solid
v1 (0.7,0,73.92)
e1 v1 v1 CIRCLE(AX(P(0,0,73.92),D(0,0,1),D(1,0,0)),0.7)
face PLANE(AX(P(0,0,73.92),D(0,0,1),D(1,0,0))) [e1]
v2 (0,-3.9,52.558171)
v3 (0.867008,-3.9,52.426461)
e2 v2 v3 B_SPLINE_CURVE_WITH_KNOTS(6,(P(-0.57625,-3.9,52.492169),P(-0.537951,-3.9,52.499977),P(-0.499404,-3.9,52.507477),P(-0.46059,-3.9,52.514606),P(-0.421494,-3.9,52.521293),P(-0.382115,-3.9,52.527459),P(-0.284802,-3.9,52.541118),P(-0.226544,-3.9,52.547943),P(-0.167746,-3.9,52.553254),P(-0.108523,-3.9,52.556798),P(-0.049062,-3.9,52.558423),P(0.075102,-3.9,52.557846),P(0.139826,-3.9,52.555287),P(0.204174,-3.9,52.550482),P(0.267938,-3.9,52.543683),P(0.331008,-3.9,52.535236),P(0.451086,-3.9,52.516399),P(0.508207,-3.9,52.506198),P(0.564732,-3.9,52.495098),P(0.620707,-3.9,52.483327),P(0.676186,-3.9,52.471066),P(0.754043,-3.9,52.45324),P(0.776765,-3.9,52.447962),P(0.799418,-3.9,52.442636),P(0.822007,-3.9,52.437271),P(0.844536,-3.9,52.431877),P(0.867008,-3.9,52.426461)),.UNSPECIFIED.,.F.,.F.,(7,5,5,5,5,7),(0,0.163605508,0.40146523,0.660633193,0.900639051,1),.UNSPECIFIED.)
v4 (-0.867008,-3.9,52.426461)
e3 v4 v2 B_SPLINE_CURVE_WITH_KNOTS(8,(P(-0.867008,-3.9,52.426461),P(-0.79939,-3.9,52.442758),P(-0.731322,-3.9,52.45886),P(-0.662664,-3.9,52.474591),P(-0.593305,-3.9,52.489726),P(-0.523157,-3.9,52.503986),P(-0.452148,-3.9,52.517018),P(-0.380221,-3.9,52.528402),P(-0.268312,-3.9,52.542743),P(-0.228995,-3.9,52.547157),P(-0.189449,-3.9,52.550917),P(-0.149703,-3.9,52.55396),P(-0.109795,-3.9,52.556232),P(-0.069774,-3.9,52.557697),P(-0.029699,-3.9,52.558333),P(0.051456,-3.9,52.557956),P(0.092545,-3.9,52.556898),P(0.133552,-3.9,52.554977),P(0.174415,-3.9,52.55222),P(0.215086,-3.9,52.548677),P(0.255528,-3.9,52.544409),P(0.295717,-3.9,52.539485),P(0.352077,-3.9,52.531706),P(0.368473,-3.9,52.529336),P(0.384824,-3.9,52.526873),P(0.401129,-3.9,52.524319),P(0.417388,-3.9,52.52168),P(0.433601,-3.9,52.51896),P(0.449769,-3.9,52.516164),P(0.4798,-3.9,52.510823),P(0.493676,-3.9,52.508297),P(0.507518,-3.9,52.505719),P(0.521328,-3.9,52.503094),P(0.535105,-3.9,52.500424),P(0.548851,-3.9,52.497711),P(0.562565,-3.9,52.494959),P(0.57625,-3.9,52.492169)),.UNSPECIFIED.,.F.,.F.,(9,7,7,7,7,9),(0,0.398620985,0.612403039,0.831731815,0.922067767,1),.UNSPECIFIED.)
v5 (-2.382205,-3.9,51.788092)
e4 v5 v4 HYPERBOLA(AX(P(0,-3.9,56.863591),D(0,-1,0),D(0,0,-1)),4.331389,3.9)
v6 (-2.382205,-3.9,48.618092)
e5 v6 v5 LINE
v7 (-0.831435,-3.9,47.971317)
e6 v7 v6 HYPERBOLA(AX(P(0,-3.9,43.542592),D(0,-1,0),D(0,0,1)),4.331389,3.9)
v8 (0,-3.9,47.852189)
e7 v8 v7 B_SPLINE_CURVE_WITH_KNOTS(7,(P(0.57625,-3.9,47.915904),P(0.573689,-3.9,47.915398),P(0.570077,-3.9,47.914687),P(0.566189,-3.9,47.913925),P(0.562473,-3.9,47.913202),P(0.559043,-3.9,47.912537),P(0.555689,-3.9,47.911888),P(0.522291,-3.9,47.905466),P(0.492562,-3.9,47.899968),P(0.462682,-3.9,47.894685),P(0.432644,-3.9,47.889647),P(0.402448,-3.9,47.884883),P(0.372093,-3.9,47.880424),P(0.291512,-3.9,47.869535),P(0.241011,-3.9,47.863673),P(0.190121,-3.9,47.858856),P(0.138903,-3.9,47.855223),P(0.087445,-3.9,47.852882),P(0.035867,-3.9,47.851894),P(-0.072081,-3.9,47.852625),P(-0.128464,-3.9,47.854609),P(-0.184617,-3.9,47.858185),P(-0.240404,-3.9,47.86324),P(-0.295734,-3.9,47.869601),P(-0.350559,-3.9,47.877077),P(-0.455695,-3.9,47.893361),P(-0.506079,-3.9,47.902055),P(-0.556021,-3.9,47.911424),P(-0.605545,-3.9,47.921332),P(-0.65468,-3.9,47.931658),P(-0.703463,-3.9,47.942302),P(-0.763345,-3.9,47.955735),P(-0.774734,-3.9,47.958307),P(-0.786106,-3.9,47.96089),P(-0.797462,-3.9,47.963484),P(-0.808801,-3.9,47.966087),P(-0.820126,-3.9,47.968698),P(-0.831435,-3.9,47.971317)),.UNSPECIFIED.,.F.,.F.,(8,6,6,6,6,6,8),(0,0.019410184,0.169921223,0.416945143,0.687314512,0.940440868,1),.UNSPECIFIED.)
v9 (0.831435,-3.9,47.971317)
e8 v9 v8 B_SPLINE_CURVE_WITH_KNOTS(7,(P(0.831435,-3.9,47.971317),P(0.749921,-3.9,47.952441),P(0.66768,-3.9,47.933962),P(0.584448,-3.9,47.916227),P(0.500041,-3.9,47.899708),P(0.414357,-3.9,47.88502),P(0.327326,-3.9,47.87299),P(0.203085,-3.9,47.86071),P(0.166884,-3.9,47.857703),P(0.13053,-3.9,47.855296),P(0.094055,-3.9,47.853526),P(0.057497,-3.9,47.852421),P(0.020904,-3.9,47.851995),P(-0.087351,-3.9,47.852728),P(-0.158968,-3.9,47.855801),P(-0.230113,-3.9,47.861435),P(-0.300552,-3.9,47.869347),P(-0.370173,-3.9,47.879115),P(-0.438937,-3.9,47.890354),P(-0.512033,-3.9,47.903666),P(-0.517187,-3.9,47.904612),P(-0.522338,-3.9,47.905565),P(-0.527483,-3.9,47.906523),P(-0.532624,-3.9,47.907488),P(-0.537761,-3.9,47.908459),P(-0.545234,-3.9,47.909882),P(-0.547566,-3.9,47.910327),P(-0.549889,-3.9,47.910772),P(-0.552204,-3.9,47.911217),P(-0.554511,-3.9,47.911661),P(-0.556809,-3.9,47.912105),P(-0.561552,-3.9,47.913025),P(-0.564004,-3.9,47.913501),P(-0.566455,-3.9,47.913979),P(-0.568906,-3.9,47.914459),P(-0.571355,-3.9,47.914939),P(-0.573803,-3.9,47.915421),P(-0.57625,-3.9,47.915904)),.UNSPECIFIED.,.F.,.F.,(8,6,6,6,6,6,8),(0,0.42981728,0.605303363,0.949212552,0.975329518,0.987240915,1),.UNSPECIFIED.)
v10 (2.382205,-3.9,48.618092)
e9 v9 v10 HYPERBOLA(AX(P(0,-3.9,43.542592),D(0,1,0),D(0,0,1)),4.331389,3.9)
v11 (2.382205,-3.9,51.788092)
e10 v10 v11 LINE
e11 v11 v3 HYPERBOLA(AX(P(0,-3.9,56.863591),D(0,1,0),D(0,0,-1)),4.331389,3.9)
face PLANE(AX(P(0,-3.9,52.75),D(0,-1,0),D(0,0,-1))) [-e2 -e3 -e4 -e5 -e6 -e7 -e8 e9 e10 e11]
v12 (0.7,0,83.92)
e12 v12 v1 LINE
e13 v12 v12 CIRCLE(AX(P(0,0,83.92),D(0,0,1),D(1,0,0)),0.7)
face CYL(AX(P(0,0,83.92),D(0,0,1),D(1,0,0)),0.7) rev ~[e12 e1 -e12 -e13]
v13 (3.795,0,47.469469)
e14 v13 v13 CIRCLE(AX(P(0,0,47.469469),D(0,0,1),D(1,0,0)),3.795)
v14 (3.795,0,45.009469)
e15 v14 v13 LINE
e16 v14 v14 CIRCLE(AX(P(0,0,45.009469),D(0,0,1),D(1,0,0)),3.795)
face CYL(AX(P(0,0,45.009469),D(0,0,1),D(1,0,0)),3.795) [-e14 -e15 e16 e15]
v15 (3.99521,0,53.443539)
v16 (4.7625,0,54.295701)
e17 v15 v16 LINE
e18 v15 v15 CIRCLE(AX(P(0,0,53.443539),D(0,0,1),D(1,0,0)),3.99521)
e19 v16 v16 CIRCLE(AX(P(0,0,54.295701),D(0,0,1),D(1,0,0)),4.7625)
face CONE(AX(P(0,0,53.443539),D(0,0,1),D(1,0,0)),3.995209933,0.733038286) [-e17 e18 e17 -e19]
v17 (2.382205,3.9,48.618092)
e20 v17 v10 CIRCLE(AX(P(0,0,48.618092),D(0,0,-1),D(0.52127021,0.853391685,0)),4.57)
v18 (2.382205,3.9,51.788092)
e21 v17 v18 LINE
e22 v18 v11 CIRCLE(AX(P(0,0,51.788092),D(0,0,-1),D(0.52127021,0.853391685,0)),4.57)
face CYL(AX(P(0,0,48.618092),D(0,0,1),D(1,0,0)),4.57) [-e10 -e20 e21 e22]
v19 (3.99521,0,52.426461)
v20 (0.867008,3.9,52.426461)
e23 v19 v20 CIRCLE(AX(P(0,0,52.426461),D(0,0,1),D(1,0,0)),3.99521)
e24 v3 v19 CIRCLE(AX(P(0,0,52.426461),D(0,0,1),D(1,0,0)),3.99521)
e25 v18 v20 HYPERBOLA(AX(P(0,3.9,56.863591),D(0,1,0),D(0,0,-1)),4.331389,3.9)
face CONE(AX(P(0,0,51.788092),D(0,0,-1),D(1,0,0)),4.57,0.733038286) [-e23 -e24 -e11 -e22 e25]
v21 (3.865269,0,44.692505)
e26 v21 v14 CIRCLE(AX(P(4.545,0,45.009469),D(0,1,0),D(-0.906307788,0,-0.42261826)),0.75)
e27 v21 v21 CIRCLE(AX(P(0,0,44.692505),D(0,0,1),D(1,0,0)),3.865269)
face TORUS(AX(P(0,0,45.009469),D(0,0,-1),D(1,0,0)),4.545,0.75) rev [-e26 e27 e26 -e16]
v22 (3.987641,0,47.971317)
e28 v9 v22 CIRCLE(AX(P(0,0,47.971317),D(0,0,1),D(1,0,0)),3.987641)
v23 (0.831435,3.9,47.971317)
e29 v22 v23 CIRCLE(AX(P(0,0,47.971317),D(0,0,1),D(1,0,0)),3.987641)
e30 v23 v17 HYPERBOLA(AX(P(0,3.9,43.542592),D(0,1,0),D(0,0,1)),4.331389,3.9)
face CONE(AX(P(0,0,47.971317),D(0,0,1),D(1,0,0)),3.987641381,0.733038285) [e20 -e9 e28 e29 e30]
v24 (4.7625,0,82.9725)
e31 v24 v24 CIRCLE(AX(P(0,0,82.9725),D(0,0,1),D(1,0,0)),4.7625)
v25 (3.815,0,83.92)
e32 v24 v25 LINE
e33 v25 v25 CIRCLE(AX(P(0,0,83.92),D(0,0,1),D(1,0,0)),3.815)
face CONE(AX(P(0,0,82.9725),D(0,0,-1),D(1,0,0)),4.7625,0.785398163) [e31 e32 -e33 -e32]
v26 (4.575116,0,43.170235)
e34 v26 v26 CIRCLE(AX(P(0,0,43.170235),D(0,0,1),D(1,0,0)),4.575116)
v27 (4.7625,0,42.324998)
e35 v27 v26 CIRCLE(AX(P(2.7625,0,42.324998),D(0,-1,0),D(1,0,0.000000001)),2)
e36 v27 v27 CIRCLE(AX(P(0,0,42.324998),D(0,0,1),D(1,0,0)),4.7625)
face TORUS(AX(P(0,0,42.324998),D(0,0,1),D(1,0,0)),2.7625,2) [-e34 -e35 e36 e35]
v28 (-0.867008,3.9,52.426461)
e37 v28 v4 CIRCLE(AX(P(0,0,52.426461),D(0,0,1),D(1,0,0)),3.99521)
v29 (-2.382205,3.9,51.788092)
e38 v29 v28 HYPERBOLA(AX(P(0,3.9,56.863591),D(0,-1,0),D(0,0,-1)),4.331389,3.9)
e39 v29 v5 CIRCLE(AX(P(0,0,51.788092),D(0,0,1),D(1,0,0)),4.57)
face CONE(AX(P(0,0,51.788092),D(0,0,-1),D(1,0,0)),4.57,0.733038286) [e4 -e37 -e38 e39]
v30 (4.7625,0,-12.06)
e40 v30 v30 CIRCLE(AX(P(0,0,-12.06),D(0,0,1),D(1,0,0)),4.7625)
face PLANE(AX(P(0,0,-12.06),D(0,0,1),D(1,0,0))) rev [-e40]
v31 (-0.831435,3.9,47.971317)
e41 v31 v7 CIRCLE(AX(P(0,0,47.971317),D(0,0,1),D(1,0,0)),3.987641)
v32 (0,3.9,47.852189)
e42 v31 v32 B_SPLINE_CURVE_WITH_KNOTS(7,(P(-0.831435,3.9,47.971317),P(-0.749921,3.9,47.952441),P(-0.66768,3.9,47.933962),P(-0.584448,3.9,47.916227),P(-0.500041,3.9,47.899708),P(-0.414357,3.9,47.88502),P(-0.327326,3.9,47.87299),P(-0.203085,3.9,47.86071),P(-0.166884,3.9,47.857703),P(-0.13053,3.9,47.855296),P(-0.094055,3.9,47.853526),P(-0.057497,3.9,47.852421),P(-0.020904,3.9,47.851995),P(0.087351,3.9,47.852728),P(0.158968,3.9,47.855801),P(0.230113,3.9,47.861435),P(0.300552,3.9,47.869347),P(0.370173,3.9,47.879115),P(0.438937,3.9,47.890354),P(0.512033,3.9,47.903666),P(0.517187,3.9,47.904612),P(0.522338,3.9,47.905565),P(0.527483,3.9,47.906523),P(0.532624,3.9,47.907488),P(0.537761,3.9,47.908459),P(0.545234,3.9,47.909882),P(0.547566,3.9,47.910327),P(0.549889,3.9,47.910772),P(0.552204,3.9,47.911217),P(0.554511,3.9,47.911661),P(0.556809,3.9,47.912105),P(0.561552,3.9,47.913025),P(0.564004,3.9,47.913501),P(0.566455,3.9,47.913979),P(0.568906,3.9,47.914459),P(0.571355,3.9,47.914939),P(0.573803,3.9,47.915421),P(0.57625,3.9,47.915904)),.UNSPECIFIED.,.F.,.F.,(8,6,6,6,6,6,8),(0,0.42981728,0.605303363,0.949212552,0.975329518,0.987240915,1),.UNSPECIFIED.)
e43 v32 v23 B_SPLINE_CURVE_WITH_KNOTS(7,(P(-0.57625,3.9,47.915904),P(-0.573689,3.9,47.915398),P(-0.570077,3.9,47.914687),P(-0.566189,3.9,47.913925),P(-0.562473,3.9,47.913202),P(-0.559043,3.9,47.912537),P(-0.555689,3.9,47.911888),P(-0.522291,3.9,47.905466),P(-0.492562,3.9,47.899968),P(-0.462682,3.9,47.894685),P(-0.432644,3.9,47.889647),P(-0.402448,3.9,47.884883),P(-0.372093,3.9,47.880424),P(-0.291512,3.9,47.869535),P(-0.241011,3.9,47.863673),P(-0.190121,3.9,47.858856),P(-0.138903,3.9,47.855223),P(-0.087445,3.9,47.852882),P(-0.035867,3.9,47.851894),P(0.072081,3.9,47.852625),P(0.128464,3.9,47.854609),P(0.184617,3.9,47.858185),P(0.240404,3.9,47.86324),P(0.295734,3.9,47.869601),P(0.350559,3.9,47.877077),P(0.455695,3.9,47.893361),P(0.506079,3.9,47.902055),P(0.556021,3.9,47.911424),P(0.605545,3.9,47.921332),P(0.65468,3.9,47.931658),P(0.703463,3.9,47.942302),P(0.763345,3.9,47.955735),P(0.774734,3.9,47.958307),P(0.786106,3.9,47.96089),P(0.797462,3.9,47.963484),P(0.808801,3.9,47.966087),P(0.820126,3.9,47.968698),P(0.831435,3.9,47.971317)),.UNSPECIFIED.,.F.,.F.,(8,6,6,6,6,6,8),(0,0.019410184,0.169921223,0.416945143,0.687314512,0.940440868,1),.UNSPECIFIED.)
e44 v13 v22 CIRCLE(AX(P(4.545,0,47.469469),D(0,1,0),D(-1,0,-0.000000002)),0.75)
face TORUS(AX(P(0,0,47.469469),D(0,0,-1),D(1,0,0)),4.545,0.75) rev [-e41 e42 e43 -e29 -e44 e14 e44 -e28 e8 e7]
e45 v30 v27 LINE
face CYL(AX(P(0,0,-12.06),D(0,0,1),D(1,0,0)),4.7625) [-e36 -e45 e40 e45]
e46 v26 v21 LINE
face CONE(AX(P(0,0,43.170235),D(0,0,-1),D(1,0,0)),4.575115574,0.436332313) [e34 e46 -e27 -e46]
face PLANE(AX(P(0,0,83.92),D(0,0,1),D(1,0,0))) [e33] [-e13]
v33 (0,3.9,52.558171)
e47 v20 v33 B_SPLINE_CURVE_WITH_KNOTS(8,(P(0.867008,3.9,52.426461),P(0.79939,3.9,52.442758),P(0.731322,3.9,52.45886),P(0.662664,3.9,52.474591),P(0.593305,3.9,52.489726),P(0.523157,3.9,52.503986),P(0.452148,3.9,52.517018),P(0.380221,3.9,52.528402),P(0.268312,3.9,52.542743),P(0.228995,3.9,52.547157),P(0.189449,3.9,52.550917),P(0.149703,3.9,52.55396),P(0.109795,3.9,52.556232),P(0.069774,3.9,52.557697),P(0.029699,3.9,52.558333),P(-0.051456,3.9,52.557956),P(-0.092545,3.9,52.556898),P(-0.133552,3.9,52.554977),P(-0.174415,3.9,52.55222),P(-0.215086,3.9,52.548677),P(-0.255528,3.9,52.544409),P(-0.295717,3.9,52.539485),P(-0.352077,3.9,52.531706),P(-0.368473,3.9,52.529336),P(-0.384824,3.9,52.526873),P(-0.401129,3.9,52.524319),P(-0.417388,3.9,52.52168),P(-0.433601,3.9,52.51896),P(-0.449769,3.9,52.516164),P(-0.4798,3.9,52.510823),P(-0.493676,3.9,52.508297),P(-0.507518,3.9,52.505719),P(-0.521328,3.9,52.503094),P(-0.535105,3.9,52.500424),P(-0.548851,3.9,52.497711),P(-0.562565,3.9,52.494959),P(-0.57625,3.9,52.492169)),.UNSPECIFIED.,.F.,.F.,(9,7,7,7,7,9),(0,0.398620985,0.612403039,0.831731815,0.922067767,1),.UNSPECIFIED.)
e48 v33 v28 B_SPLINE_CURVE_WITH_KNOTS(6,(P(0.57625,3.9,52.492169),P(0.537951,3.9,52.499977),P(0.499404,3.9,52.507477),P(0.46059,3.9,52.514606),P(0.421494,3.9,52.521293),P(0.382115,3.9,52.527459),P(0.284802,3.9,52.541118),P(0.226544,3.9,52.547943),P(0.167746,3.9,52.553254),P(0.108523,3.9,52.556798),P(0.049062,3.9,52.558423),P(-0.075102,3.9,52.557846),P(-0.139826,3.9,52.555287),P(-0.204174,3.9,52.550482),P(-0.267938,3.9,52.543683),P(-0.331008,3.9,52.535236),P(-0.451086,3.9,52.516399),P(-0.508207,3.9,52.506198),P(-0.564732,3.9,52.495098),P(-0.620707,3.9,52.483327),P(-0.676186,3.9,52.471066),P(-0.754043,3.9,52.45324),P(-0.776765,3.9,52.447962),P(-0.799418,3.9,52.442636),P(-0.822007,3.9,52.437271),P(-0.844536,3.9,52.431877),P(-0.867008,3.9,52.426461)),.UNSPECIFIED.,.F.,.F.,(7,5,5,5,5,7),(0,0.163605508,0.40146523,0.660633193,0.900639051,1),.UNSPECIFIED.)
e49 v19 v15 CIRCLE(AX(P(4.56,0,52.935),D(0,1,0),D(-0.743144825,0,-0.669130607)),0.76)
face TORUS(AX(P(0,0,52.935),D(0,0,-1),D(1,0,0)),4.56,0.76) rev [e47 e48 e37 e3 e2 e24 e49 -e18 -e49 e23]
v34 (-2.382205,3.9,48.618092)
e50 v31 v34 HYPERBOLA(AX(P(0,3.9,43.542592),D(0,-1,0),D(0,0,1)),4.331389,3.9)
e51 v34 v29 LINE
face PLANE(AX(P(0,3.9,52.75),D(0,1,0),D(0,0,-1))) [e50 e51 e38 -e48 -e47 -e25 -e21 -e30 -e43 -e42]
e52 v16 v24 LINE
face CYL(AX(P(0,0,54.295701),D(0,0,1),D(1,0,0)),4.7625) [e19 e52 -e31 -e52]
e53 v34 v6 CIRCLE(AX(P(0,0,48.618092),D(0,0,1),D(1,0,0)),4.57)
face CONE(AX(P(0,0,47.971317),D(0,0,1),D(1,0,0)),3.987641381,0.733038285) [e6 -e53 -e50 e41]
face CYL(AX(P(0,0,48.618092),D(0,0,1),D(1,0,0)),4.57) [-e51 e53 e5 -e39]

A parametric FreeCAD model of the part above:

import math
import FreeCAD as App
import Part
import Sketcher
Q = App.Units.Quantity

doc = App.newDocument("Part")
body = doc.addObject("PartDesign::Body", "Body")

# Sketch on XZ plane
sketch1 = body.newObject("Sketcher::SketchObject", "Sketch")
sketch1.AttachmentSupport = (doc.getObject("XZ_Plane"), [""])
sketch1.MapMode = "FlatFace"
sketch1.addGeometry(Part.ArcOfCircle(Part.Circle(App.Vector(2.7625, 42.324998, 0), App.Vector(0, 0, 1), 2), math.radians(0), math.radians(25)), False)
sketch1.addGeometry(Part.LineSegment(App.Vector(4.7625, 42.324998, 0), App.Vector(4.7625, -12.06, 0)), False)
sketch1.addGeometry(Part.LineSegment(App.Vector(4.7625, -12.06, 0), App.Vector(0, -12.06, 0)), False)
sketch1.addGeometry(Part.LineSegment(App.Vector(0, -12.06, 0), App.Vector(0, 83.92, 0)), False)
sketch1.addGeometry(Part.LineSegment(App.Vector(0, 83.92, 0), App.Vector(3.815, 83.92, 0)), False)
sketch1.addGeometry(Part.LineSegment(App.Vector(3.815, 83.92, 0), App.Vector(4.7625, 82.9725, 0)), False)
sketch1.addGeometry(Part.LineSegment(App.Vector(4.7625, 82.9725, 0), App.Vector(4.7625, 54.295701, 0)), False)
sketch1.addGeometry(Part.LineSegment(App.Vector(4.7625, 54.295701, 0), App.Vector(3.99521, 53.443539, 0)), False)
sketch1.addGeometry(Part.ArcOfCircle(Part.Circle(App.Vector(4.56, 52.935, 0), App.Vector(0, 0, 1), 0.76), math.radians(138), math.radians(222)), False)
sketch1.addGeometry(Part.LineSegment(App.Vector(3.99521, 52.426461, 0), App.Vector(4.57, 51.788092, 0)), False)
sketch1.addGeometry(Part.LineSegment(App.Vector(4.57, 51.788092, 0), App.Vector(4.57, 48.618092, 0)), False)
sketch1.addGeometry(Part.LineSegment(App.Vector(4.57, 48.618092, 0), App.Vector(3.987641, 47.971317, 0)), False)
sketch1.addGeometry(Part.ArcOfCircle(Part.Circle(App.Vector(4.545, 47.469469, 0), App.Vector(0, 0, 1), 0.75), math.radians(138), math.radians(180)), False)
sketch1.addGeometry(Part.LineSegment(App.Vector(3.795, 47.469469, 0), App.Vector(3.795, 45.009469, 0)), False)
sketch1.addGeometry(Part.ArcOfCircle(Part.Circle(App.Vector(4.545, 45.009469, 0), App.Vector(0, 0, 1), 0.75), math.radians(-180), math.radians(-155)), False)
sketch1.addGeometry(Part.LineSegment(App.Vector(3.865269, 44.692505, 0), App.Vector(4.575116, 43.170235, 0)), False)
sketch1.addConstraint(Sketcher.Constraint("Tangent", 0, 1, 1, 1))
sketch1.addConstraint(Sketcher.Constraint("Coincident", 1, 2, 2, 1))
sketch1.addConstraint(Sketcher.Constraint("Coincident", 2, 2, 3, 1))
sketch1.addConstraint(Sketcher.Constraint("Coincident", 3, 2, 4, 1))
sketch1.addConstraint(Sketcher.Constraint("Coincident", 4, 2, 5, 1))
sketch1.addConstraint(Sketcher.Constraint("Coincident", 5, 2, 6, 1))
sketch1.addConstraint(Sketcher.Constraint("Coincident", 6, 2, 7, 1))
sketch1.addConstraint(Sketcher.Constraint("Tangent", 7, 2, 8, 1))
sketch1.addConstraint(Sketcher.Constraint("Tangent", 8, 2, 9, 1))
sketch1.addConstraint(Sketcher.Constraint("Coincident", 9, 2, 10, 1))
sketch1.addConstraint(Sketcher.Constraint("Coincident", 10, 2, 11, 1))
sketch1.addConstraint(Sketcher.Constraint("Tangent", 11, 2, 12, 1))
sketch1.addConstraint(Sketcher.Constraint("Tangent", 12, 2, 13, 1))
sketch1.addConstraint(Sketcher.Constraint("Tangent", 13, 2, 14, 1))
sketch1.addConstraint(Sketcher.Constraint("Tangent", 14, 2, 15, 1))
sketch1.addConstraint(Sketcher.Constraint("Tangent", 15, 2, 0, 2))
sketch1.addConstraint(Sketcher.Constraint("Vertical", 1))
sketch1.addConstraint(Sketcher.Constraint("Horizontal", 2))
sketch1.addConstraint(Sketcher.Constraint("Vertical", 3))
sketch1.addConstraint(Sketcher.Constraint("Horizontal", 4))
sketch1.addConstraint(Sketcher.Constraint("Vertical", 6))
sketch1.addConstraint(Sketcher.Constraint("Vertical", 10))
sketch1.addConstraint(Sketcher.Constraint("Vertical", 13))
sketch1.addConstraint(Sketcher.Constraint("Equal", 12, 14))
sketch1.addConstraint(Sketcher.Constraint("PointOnObject", 2, 2, -2))
sketch1.addConstraint(Sketcher.Constraint("Parallel", 7, 11))
sketch1.addConstraint(Sketcher.Constraint("Vertical", 1, 2, 5, 2))
sketch1.addConstraint(Sketcher.Constraint("Vertical", 7, 2, 8, 2))
sketch1.addConstraint(Sketcher.Constraint("Radius", 0, Q("2 mm")))
sketch1.addConstraint(Sketcher.Constraint("Angle", 5, Q("-45 deg")))
sketch1.addConstraint(Sketcher.Constraint("Angle", 7, Q("-132 deg")))
sketch1.addConstraint(Sketcher.Constraint("Angle", 15, Q("-65 deg")))
sketch1.addConstraint(Sketcher.Constraint("Radius", 8, Q("0.76 mm")))
sketch1.addConstraint(Sketcher.Constraint("Radius", 12, Q("0.75 mm")))
sketch1.addConstraint(Sketcher.Constraint("DistanceY", 3, 1, 3, 2, Q("95.98 mm")))
sketch1.addConstraint(Sketcher.Constraint("DistanceY", 10, 2, 10, 1, Q("3.17 mm")))
sketch1.addConstraint(Sketcher.Constraint("DistanceY", 13, 2, 13, 1, Q("2.46 mm")))
sketch1.addConstraint(Sketcher.Constraint("DistanceX", 4, 1, 4, 2, Q("3.815 mm")))
sketch1.addConstraint(Sketcher.Constraint("DistanceY", 1, 2, 1, 1, Q("54.384998 mm")))
sketch1.addConstraint(Sketcher.Constraint("DistanceX", -1, 1, 8, 3, Q("4.56 mm")))
sketch1.addConstraint(Sketcher.Constraint("DistanceY", 1, 2, -1, 1, Q("12.06 mm")))
sketch1.addConstraint(Sketcher.Constraint("DistanceX", -1, 1, 9, 2, Q("4.57 mm")))
sketch1.addConstraint(Sketcher.Constraint("DistanceY", 0, 3, 8, 3, Q("10.610002 mm")))
sketch1.addConstraint(Sketcher.Constraint("DistanceX", 4, 2, 12, 3, Q("0.73 mm")))
revolution = body.newObject("PartDesign::Revolution", "Revolution")
revolution.Profile = sketch1
revolution.ReferenceAxis = (sketch1, ["V_Axis"])
revolution.Angle = 360

# Sketch on YZ plane
sketch2 = body.newObject("Sketcher::SketchObject", "Sketch001")
sketch2.AttachmentSupport = (doc.getObject("YZ_Plane"), [""])
sketch2.MapMode = "FlatFace"
sketch2.addGeometry(Part.LineSegment(App.Vector(11.9, 52.75, 0), App.Vector(3.9, 52.75, 0)), False)
sketch2.addGeometry(Part.LineSegment(App.Vector(3.9, 52.75, 0), App.Vector(3.9, 47.75, 0)), False)
sketch2.addGeometry(Part.LineSegment(App.Vector(3.9, 47.75, 0), App.Vector(11.9, 47.75, 0)), False)
sketch2.addGeometry(Part.LineSegment(App.Vector(11.9, 47.75, 0), App.Vector(11.9, 52.75, 0)), False)
sketch2.addGeometry(Part.LineSegment(App.Vector(-3.9, 52.75, 0), App.Vector(-11.9, 52.75, 0)), False)
sketch2.addGeometry(Part.LineSegment(App.Vector(-11.9, 52.75, 0), App.Vector(-11.9, 47.75, 0)), False)
sketch2.addGeometry(Part.LineSegment(App.Vector(-11.9, 47.75, 0), App.Vector(-3.9, 47.75, 0)), False)
sketch2.addGeometry(Part.LineSegment(App.Vector(-3.9, 47.75, 0), App.Vector(-3.9, 52.75, 0)), False)
sketch2.addConstraint(Sketcher.Constraint("Coincident", 0, 2, 1, 1))
sketch2.addConstraint(Sketcher.Constraint("Coincident", 1, 2, 2, 1))
sketch2.addConstraint(Sketcher.Constraint("Coincident", 2, 2, 3, 1))
sketch2.addConstraint(Sketcher.Constraint("Coincident", 3, 2, 0, 1))
sketch2.addConstraint(Sketcher.Constraint("Coincident", 4, 2, 5, 1))
sketch2.addConstraint(Sketcher.Constraint("Coincident", 5, 2, 6, 1))
sketch2.addConstraint(Sketcher.Constraint("Coincident", 6, 2, 7, 1))
sketch2.addConstraint(Sketcher.Constraint("Coincident", 7, 2, 4, 1))
sketch2.addConstraint(Sketcher.Constraint("Horizontal", 0))
sketch2.addConstraint(Sketcher.Constraint("Vertical", 1))
sketch2.addConstraint(Sketcher.Constraint("Horizontal", 2))
sketch2.addConstraint(Sketcher.Constraint("Vertical", 3))
sketch2.addConstraint(Sketcher.Constraint("Horizontal", 4))
sketch2.addConstraint(Sketcher.Constraint("Vertical", 5))
sketch2.addConstraint(Sketcher.Constraint("Horizontal", 6))
sketch2.addConstraint(Sketcher.Constraint("Vertical", 7))
sketch2.addConstraint(Sketcher.Constraint("Symmetric", 3, 2, 4, 2, -2))
sketch2.addConstraint(Sketcher.Constraint("Symmetric", 1, 2, 6, 2, -2))
sketch2.addConstraint(Sketcher.Constraint("DistanceX", 0, 2, 0, 1, Q("8 mm")))
sketch2.addConstraint(Sketcher.Constraint("DistanceY", 1, 2, 1, 1, Q("5 mm")))
sketch2.addConstraint(Sketcher.Constraint("DistanceX", -1, 1, 0, 2, Q("3.9 mm")))
sketch2.addConstraint(Sketcher.Constraint("DistanceY", -1, 1, 0, 2, Q("52.75 mm")))
pocket1 = body.newObject("PartDesign::Pocket", "Pocket")
pocket1.Profile = sketch2
pocket1.Type = "ThroughAll"
pocket1.Midplane = True

# Sketch on XY plane
sketch3 = body.newObject("Sketcher::SketchObject", "Sketch002")
sketch3.AttachmentSupport = (doc.getObject("XY_Plane"), [""])
sketch3.MapMode = "FlatFace"
sketch3.AttachmentOffset = App.Placement(App.Vector(0, 0, 83.92), App.Rotation())
sketch3.addGeometry(Part.Circle(App.Vector(0, 0, 0), App.Vector(0, 0, 1), 0.7), False)
sketch3.addConstraint(Sketcher.Constraint("Coincident", 0, 3, -1, 1))
sketch3.addConstraint(Sketcher.Constraint("Diameter", 0, Q("1.4 mm")))
pocket2 = body.newObject("PartDesign::Pocket", "Pocket001")
pocket2.Profile = sketch3
pocket2.Length = 10

doc.recompute()
